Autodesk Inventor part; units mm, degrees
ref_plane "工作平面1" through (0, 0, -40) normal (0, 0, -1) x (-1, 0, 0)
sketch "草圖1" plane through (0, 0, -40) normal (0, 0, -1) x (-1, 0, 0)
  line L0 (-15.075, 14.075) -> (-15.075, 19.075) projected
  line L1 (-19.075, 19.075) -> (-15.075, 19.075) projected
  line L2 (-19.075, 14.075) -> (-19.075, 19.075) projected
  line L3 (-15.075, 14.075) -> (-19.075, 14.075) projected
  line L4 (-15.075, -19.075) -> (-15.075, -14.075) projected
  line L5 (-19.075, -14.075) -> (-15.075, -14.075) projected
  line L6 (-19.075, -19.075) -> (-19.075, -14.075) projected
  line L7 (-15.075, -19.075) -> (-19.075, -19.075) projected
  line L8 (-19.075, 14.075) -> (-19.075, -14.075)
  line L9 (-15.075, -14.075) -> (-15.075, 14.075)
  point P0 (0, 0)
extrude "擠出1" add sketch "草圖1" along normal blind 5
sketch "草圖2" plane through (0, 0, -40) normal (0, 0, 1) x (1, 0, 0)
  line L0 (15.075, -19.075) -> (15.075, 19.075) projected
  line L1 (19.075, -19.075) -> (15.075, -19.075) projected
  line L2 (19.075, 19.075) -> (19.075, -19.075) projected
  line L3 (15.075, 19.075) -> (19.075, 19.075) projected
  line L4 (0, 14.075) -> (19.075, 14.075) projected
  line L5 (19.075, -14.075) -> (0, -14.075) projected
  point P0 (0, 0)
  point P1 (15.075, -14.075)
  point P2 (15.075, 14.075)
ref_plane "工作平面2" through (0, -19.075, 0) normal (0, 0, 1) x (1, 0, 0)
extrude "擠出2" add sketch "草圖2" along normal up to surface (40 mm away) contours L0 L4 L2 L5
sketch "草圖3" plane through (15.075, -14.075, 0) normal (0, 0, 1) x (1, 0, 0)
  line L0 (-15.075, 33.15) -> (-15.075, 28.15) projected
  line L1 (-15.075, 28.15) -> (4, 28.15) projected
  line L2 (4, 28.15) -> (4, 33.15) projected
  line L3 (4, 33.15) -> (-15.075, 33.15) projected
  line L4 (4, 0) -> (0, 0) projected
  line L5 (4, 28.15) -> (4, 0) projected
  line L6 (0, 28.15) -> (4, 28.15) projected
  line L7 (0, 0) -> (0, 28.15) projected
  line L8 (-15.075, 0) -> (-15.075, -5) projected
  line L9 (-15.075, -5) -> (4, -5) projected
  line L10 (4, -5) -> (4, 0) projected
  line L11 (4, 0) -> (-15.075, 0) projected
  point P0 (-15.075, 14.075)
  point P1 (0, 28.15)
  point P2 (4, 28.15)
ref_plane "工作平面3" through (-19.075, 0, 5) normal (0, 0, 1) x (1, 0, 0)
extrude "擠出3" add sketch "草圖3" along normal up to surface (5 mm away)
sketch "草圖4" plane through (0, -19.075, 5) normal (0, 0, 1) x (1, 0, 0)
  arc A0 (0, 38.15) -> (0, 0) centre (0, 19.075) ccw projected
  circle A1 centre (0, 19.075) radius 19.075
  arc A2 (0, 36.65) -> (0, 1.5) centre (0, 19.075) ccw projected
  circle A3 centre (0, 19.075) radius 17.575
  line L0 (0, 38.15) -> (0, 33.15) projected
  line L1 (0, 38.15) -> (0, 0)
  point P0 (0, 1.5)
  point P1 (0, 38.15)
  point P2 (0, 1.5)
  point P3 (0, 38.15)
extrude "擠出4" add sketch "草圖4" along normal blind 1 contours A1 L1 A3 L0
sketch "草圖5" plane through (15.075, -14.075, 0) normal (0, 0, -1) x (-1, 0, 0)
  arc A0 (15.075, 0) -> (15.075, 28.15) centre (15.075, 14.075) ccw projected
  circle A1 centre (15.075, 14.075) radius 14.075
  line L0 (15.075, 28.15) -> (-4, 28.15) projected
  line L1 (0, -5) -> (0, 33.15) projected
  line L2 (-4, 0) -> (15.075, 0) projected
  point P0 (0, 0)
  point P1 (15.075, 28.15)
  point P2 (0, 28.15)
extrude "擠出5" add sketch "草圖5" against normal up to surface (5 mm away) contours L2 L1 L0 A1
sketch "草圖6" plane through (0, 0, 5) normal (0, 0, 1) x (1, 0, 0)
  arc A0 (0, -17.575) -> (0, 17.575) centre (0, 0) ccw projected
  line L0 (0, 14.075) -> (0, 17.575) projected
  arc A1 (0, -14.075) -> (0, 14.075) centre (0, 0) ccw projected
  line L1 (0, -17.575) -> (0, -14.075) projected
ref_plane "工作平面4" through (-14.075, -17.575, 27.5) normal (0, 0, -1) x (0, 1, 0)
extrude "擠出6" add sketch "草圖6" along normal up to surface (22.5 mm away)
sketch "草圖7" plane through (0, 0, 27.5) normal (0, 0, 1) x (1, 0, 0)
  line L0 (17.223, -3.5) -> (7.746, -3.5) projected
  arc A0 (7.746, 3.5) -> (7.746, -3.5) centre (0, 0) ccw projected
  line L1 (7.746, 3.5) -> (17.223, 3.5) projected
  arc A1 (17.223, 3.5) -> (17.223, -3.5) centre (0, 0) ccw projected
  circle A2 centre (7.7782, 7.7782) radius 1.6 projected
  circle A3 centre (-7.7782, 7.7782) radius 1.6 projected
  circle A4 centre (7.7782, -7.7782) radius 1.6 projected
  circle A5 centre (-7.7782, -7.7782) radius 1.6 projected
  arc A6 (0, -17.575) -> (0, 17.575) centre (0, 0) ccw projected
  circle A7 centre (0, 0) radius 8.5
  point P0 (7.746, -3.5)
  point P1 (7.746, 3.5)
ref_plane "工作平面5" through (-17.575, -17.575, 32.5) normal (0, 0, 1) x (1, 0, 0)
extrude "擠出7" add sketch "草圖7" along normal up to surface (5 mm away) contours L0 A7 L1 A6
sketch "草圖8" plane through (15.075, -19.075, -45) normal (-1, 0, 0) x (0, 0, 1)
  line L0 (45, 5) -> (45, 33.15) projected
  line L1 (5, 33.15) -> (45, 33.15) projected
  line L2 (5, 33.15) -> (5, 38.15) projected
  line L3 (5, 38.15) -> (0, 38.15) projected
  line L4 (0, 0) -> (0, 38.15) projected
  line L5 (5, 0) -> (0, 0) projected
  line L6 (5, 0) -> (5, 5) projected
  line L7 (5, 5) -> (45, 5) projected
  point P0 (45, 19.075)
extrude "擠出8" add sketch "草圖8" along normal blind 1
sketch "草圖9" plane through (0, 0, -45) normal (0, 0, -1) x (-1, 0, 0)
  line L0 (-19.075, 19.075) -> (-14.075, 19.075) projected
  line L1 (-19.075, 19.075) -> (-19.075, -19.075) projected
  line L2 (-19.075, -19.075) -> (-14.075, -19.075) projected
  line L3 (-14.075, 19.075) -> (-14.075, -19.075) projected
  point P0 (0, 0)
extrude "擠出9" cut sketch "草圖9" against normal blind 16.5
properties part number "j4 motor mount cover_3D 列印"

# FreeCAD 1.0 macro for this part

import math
import FreeCAD as App
import Part
import Sketcher

doc = App.newDocument("Part")
body = doc.addObject("PartDesign::Body", "Body")

sketch1 = body.newObject("Sketcher::SketchObject", "Sketch")
sketch1.AttachmentSupport = (doc.getObject("XY_Plane"), [""])
sketch1.MapMode = "FlatFace"
sketch1.AttachmentOffset = App.Placement(App.Vector(0, 0, -40), App.Rotation())
sketch1.addGeometry(Part.LineSegment(App.Vector(19.075, 19.075, 0), App.Vector(19.075, -19.075, 0)), False)
sketch1.addGeometry(Part.LineSegment(App.Vector(19.075, -19.075, 0), App.Vector(15.075, -19.075, 0)), False)
sketch1.addGeometry(Part.LineSegment(App.Vector(15.075, -19.075, 0), App.Vector(15.075, 19.075, 0)), False)
sketch1.addGeometry(Part.LineSegment(App.Vector(15.075, 19.075, 0), App.Vector(19.075, 19.075, 0)), False)
sketch1.addConstraint(Sketcher.Constraint("Coincident", 0, 2, 1, 1))
sketch1.addConstraint(Sketcher.Constraint("Coincident", 1, 2, 2, 1))
sketch1.addConstraint(Sketcher.Constraint("Coincident", 2, 2, 3, 1))
sketch1.addConstraint(Sketcher.Constraint("Coincident", 3, 2, 0, 1))
sketch1.addConstraint(Sketcher.Constraint("Vertical", 0))
sketch1.addConstraint(Sketcher.Constraint("Horizontal", 1))
sketch1.addConstraint(Sketcher.Constraint("Vertical", 2))
sketch1.addConstraint(Sketcher.Constraint("Horizontal", 3))
sketch1.addConstraint(Sketcher.Constraint("DistanceX", 1, 2, 1, 1, 4.0))
sketch1.addConstraint(Sketcher.Constraint("DistanceY", 0, 2, 0, 1, 38.15))
sketch1.addConstraint(Sketcher.Constraint("DistanceX", -1, 1, 0, 2, 19.075))
sketch1.addConstraint(Sketcher.Constraint("DistanceY", 0, 2, -1, 1, 19.075))
pad1 = body.newObject("PartDesign::Pad", "Pad")
pad1.Profile = sketch1
pad1.Length = 5
pad1.Reversed = True

sketch2 = body.newObject("Sketcher::SketchObject", "Sketch001")
sketch2.AttachmentSupport = (doc.getObject("XY_Plane"), [""])
sketch2.MapMode = "FlatFace"
sketch2.AttachmentOffset = App.Placement(App.Vector(0, 0, -40), App.Rotation())
sketch2.addGeometry(Part.LineSegment(App.Vector(15.075, 14.075, 0), App.Vector(15.075, -14.075, 0)), False)
sketch2.addGeometry(Part.LineSegment(App.Vector(15.075, -14.075, 0), App.Vector(19.075, -14.075, 0)), False)
sketch2.addGeometry(Part.LineSegment(App.Vector(19.075, -14.075, 0), App.Vector(19.075, 14.075, 0)), False)
sketch2.addGeometry(Part.LineSegment(App.Vector(19.075, 14.075, 0), App.Vector(15.075, 14.075, 0)), False)
sketch2.addConstraint(Sketcher.Constraint("Coincident", 0, 2, 1, 1))
sketch2.addConstraint(Sketcher.Constraint("Coincident", 1, 2, 2, 1))
sketch2.addConstraint(Sketcher.Constraint("Coincident", 2, 2, 3, 1))
sketch2.addConstraint(Sketcher.Constraint("Coincident", 3, 2, 0, 1))
sketch2.addConstraint(Sketcher.Constraint("Vertical", 0))
sketch2.addConstraint(Sketcher.Constraint("Horizontal", 1))
sketch2.addConstraint(Sketcher.Constraint("Vertical", 2))
sketch2.addConstraint(Sketcher.Constraint("Horizontal", 3))
sketch2.addConstraint(Sketcher.Constraint("DistanceX", 1, 1, 1, 2, 4.0))
sketch2.addConstraint(Sketcher.Constraint("DistanceY", 0, 2, 0, 1, 28.15))
sketch2.addConstraint(Sketcher.Constraint("DistanceX", -1, 1, 0, 2, 15.075))
sketch2.addConstraint(Sketcher.Constraint("DistanceY", 0, 2, -1, 1, 14.075))
pad2 = body.newObject("PartDesign::Pad", "Pad001")
pad2.Profile = sketch2
pad2.Length = 40

sketch3 = body.newObject("Sketcher::SketchObject", "Sketch002")
sketch3.AttachmentSupport = (doc.getObject("XY_Plane"), [""])
sketch3.MapMode = "FlatFace"
sketch3.addGeometry(Part.LineSegment(App.Vector(19.075, 19.075, 0), App.Vector(0, 19.075, 0)), False)
sketch3.addGeometry(Part.LineSegment(App.Vector(0, 19.075, 0), App.Vector(0, 14.075, 0)), False)
sketch3.addGeometry(Part.LineSegment(App.Vector(0, 14.075, 0), App.Vector(15.075, 14.075, 0)), False)
sketch3.addGeometry(Part.LineSegment(App.Vector(15.075, 14.075, 0), App.Vector(15.075, -14.075, 0)), False)
sketch3.addGeometry(Part.LineSegment(App.Vector(15.075, -14.075, 0), App.Vector(0, -14.075, 0)), False)
sketch3.addGeometry(Part.LineSegment(App.Vector(0, -14.075, 0), App.Vector(0, -19.075, 0)), False)
sketch3.addGeometry(Part.LineSegment(App.Vector(0, -19.075, 0), App.Vector(19.075, -19.075, 0)), False)
sketch3.addGeometry(Part.LineSegment(App.Vector(19.075, -19.075, 0), App.Vector(19.075, 19.075, 0)), False)
sketch3.addConstraint(Sketcher.Constraint("Coincident", 0, 2, 1, 1))
sketch3.addConstraint(Sketcher.Constraint("Coincident", 1, 2, 2, 1))
sketch3.addConstraint(Sketcher.Constraint("Coincident", 2, 2, 3, 1))
sketch3.addConstraint(Sketcher.Constraint("Coincident", 3, 2, 4, 1))
sketch3.addConstraint(Sketcher.Constraint("Coincident", 4, 2, 5, 1))
sketch3.addConstraint(Sketcher.Constraint("Coincident", 5, 2, 6, 1))
sketch3.addConstraint(Sketcher.Constraint("Coincident", 6, 2, 7, 1))
sketch3.addConstraint(Sketcher.Constraint("Coincident", 7, 2, 0, 1))
sketch3.addConstraint(Sketcher.Constraint("Horizontal", 0))
sketch3.addConstraint(Sketcher.Constraint("Vertical", 1))
sketch3.addConstraint(Sketcher.Constraint("Horizontal", 2))
sketch3.addConstraint(Sketcher.Constraint("Vertical", 3))
sketch3.addConstraint(Sketcher.Constraint("Horizontal", 4))
sketch3.addConstraint(Sketcher.Constraint("Vertical", 5))
sketch3.addConstraint(Sketcher.Constraint("Horizontal", 6))
sketch3.addConstraint(Sketcher.Constraint("Vertical", 7))
sketch3.addConstraint(Sketcher.Constraint("Symmetric", 1, 2, 4, 2, -1, 1))
sketch3.addConstraint(Sketcher.Constraint("Symmetric", 0, 2, 5, 2, -1))
sketch3.addConstraint(Sketcher.Constraint("DistanceY", 1, 2, 1, 1, 5.0))
sketch3.addConstraint(Sketcher.Constraint("DistanceX", 3, 2, 6, 2, 4.0))
sketch3.addConstraint(Sketcher.Constraint("DistanceY", 3, 2, 3, 1, 28.15))
sketch3.addConstraint(Sketcher.Constraint("DistanceX", 0, 2, 0, 1, 19.075))
pad3 = body.newObject("PartDesign::Pad", "Pad002")
pad3.Profile = sketch3
pad3.Length = 5

sketch4 = body.newObject("Sketcher::SketchObject", "Sketch003")
sketch4.AttachmentSupport = (doc.getObject("XY_Plane"), [""])
sketch4.MapMode = "FlatFace"
sketch4.AttachmentOffset = App.Placement(App.Vector(0, 0, 5), App.Rotation())
sketch4.addGeometry(Part.ArcOfCircle(Part.Circle(App.Vector(0, 0, 0), App.Vector(0, 0, 1), 19.075), math.radians(-90), math.radians(90)), False)
sketch4.addGeometry(Part.LineSegment(App.Vector(0, 19.075, 0), App.Vector(0, 17.575, 0)), False)
sketch4.addGeometry(Part.ArcOfCircle(Part.Circle(App.Vector(0, 0, 0), App.Vector(0, 0, 1), 17.575), math.radians(-90), math.radians(90)), False)
sketch4.addGeometry(Part.LineSegment(App.Vector(0, -17.575, 0), App.Vector(0, -19.075, 0)), False)
sketch4.addConstraint(Sketcher.Constraint("Coincident", 0, 2, 1, 1))
sketch4.addConstraint(Sketcher.Constraint("Coincident", 1, 2, 2, 2))
sketch4.addConstraint(Sketcher.Constraint("Coincident", 2, 1, 3, 1))
sketch4.addConstraint(Sketcher.Constraint("Coincident", 3, 2, 0, 1))
sketch4.addConstraint(Sketcher.Constraint("Vertical", 1))
sketch4.addConstraint(Sketcher.Constraint("Vertical", 3))
sketch4.addConstraint(Sketcher.Constraint("Coincident", 0, 3, -1, 1))
sketch4.addConstraint(Sketcher.Constraint("Coincident", 2, 3, -1, 1))
sketch4.addConstraint(Sketcher.Constraint("PointOnObject", 0, 2, -2))
sketch4.addConstraint(Sketcher.Constraint("PointOnObject", 2, 1, -2))
sketch4.addConstraint(Sketcher.Constraint("DistanceY", 1, 2, 1, 1, 1.5))
sketch4.addConstraint(Sketcher.Constraint("Radius", 0, 19.075))
pad4 = body.newObject("PartDesign::Pad", "Pad003")
pad4.Profile = sketch4
pad4.Length = 1

sketch5 = body.newObject("Sketcher::SketchObject", "Sketch004")
sketch5.AttachmentSupport = (doc.getObject("XY_Plane"), [""])
sketch5.MapMode = "FlatFace"
sketch5.addGeometry(Part.LineSegment(App.Vector(15.075, -14.075, 0), App.Vector(0, -14.075, 0)), False)
sketch5.addGeometry(Part.ArcOfCircle(Part.Circle(App.Vector(0, 0, 0), App.Vector(0, 0, 1), 14.075), math.radians(-90), math.radians(90)), False)
sketch5.addGeometry(Part.LineSegment(App.Vector(0, 14.075, 0), App.Vector(15.075, 14.075, 0)), False)
sketch5.addGeometry(Part.LineSegment(App.Vector(15.075, 14.075, 0), App.Vector(15.075, -14.075, 0)), False)
sketch5.addConstraint(Sketcher.Constraint("Tangent", 0, 2, 1, 1))
sketch5.addConstraint(Sketcher.Constraint("Tangent", 1, 2, 2, 1))
sketch5.addConstraint(Sketcher.Constraint("Coincident", 2, 2, 3, 1))
sketch5.addConstraint(Sketcher.Constraint("Coincident", 3, 2, 0, 1))
sketch5.addConstraint(Sketcher.Constraint("Horizontal", 0))
sketch5.addConstraint(Sketcher.Constraint("Horizontal", 2))
sketch5.addConstraint(Sketcher.Constraint("Vertical", 3))
sketch5.addConstraint(Sketcher.Constraint("Coincident", 1, 3, -1, 1))
sketch5.addConstraint(Sketcher.Constraint("Radius", 1, 14.075))
sketch5.addConstraint(Sketcher.Constraint("DistanceX", 0, 2, 0, 1, 15.075))
pad5 = body.newObject("PartDesign::Pad", "Pad004")
pad5.Profile = sketch5
pad5.Length = 5

sketch6 = body.newObject("Sketcher::SketchObject", "Sketch005")
sketch6.AttachmentSupport = (doc.getObject("XY_Plane"), [""])
sketch6.MapMode = "FlatFace"
sketch6.AttachmentOffset = App.Placement(App.Vector(0, 0, 5), App.Rotation())
sketch6.addGeometry(Part.LineSegment(App.Vector(0, -14.075, 0), App.Vector(0, -17.575, 0)), False)
sketch6.addGeometry(Part.ArcOfCircle(Part.Circle(App.Vector(0, 0, 0), App.Vector(0, 0, 1), 17.575), math.radians(-90), math.radians(90)), False)
sketch6.addGeometry(Part.LineSegment(App.Vector(0, 17.575, 0), App.Vector(0, 14.075, 0)), False)
sketch6.addGeometry(Part.ArcOfCircle(Part.Circle(App.Vector(0, 0, 0), App.Vector(0, 0, 1), 14.075), math.radians(-90), math.radians(90)), False)
sketch6.addConstraint(Sketcher.Constraint("Coincident", 0, 2, 1, 1))
sketch6.addConstraint(Sketcher.Constraint("Coincident", 1, 2, 2, 1))
sketch6.addConstraint(Sketcher.Constraint("Coincident", 2, 2, 3, 2))
sketch6.addConstraint(Sketcher.Constraint("Coincident", 3, 1, 0, 1))
sketch6.addConstraint(Sketcher.Constraint("Vertical", 0))
sketch6.addConstraint(Sketcher.Constraint("Vertical", 2))
sketch6.addConstraint(Sketcher.Constraint("Coincident", 1, 3, -1, 1))
sketch6.addConstraint(Sketcher.Constraint("Coincident", 3, 3, -1, 1))
sketch6.addConstraint(Sketcher.Constraint("PointOnObject", 0, 2, -2))
sketch6.addConstraint(Sketcher.Constraint("PointOnObject", 1, 2, -2))
sketch6.addConstraint(Sketcher.Constraint("DistanceY", 0, 2, 0, 1, 3.5))
sketch6.addConstraint(Sketcher.Constraint("Radius", 1, 17.575))
pad6 = body.newObject("PartDesign::Pad", "Pad005")
pad6.Profile = sketch6
pad6.Length = 22.5

sketch7 = body.newObject("Sketcher::SketchObject", "Sketch006")
sketch7.AttachmentSupport = (doc.getObject("XY_Plane"), [""])
sketch7.MapMode = "FlatFace"
sketch7.AttachmentOffset = App.Placement(App.Vector(0, 0, 27.5), App.Rotation())
sketch7.addGeometry(Part.LineSegment(App.Vector(7.746, -3.5, 0), App.Vector(17.223, -3.5, 0)), False)
sketch7.addGeometry(Part.ArcOfCircle(Part.Circle(App.Vector(0, 0, 0), App.Vector(0, 0, 1), 17.575), math.radians(-11.487033), math.radians(11.487033)), False)
sketch7.addGeometry(Part.LineSegment(App.Vector(17.223, 3.5, 0), App.Vector(7.746, 3.5, 0)), False)
sketch7.addGeometry(Part.ArcOfCircle(Part.Circle(App.Vector(0, 0, 0), App.Vector(0, 0, 1), 8.5), math.radians(-24.315647), math.radians(24.315647)), False)
sketch7.addConstraint(Sketcher.Constraint("Coincident", 0, 2, 1, 1))
sketch7.addConstraint(Sketcher.Constraint("Coincident", 1, 2, 2, 1))
sketch7.addConstraint(Sketcher.Constraint("Coincident", 2, 2, 3, 2))
sketch7.addConstraint(Sketcher.Constraint("Coincident", 3, 1, 0, 1))
sketch7.addConstraint(Sketcher.Constraint("Horizontal", 0))
sketch7.addConstraint(Sketcher.Constraint("Horizontal", 2))
sketch7.addConstraint(Sketcher.Constraint("Coincident", 1, 3, -1, 1))
sketch7.addConstraint(Sketcher.Constraint("Coincident", 3, 3, -1, 1))
sketch7.addConstraint(Sketcher.Constraint("Vertical", 0, 2, 1, 2))
sketch7.addConstraint(Sketcher.Constraint("Radius", 3, 8.5))
sketch7.addConstraint(Sketcher.Constraint("Radius", 1, 17.575))
sketch7.addConstraint(Sketcher.Constraint("DistanceY", 0, 2, 1, 2, 7.0))
pad7 = body.newObject("PartDesign::Pad", "Pad006")
pad7.Profile = sketch7
pad7.Length = 5

sketch8 = body.newObject("Sketcher::SketchObject", "Sketch007")
sketch8.AttachmentSupport = (doc.getObject("YZ_Plane"), [""])
sketch8.MapMode = "FlatFace"
sketch8.AttachmentOffset = App.Placement(App.Vector(0, 0, 15.075), App.Rotation())
sketch8.addGeometry(Part.LineSegment(App.Vector(-14.075, -40, 0), App.Vector(-14.075, 0, 0)), False)
sketch8.addGeometry(Part.LineSegment(App.Vector(-14.075, 0, 0), App.Vector(14.075, 0, 0)), False)
sketch8.addGeometry(Part.LineSegment(App.Vector(14.075, 0, 0), App.Vector(14.075, -40, 0)), False)
sketch8.addGeometry(Part.LineSegment(App.Vector(14.075, -40, 0), App.Vector(19.075, -40, 0)), False)
sketch8.addGeometry(Part.LineSegment(App.Vector(19.075, -40, 0), App.Vector(19.075, -45, 0)), False)
sketch8.addGeometry(Part.LineSegment(App.Vector(19.075, -45, 0), App.Vector(-19.075, -45, 0)), False)
sketch8.addGeometry(Part.LineSegment(App.Vector(-19.075, -45, 0), App.Vector(-19.075, -40, 0)), False)
sketch8.addGeometry(Part.LineSegment(App.Vector(-19.075, -40, 0), App.Vector(-14.075, -40, 0)), False)
sketch8.addConstraint(Sketcher.Constraint("Coincident", 0, 2, 1, 1))
sketch8.addConstraint(Sketcher.Constraint("Coincident", 1, 2, 2, 1))
sketch8.addConstraint(Sketcher.Constraint("Coincident", 2, 2, 3, 1))
sketch8.addConstraint(Sketcher.Constraint("Coincident", 3, 2, 4, 1))
sketch8.addConstraint(Sketcher.Constraint("Coincident", 4, 2, 5, 1))
sketch8.addConstraint(Sketcher.Constraint("Coincident", 5, 2, 6, 1))
sketch8.addConstraint(Sketcher.Constraint("Coincident", 6, 2, 7, 1))
sketch8.addConstraint(Sketcher.Constraint("Coincident", 7, 2, 0, 1))
sketch8.addConstraint(Sketcher.Constraint("Vertical", 0))
sketch8.addConstraint(Sketcher.Constraint("Horizontal", 1))
sketch8.addConstraint(Sketcher.Constraint("Vertical", 2))
sketch8.addConstraint(Sketcher.Constraint("Horizontal", 3))
sketch8.addConstraint(Sketcher.Constraint("Vertical", 4))
sketch8.addConstraint(Sketcher.Constraint("Horizontal", 5))
sketch8.addConstraint(Sketcher.Constraint("Vertical", 6))
sketch8.addConstraint(Sketcher.Constraint("Horizontal", 7))
sketch8.addConstraint(Sketcher.Constraint("Symmetric", 0, 2, 1, 2, -1, 1))
sketch8.addConstraint(Sketcher.Constraint("Symmetric", 3, 2, 6, 2, -2))
sketch8.addConstraint(Sketcher.Constraint("Equal", 7, 4))
sketch8.addConstraint(Sketcher.Constraint("DistanceX", 3, 1, 3, 2, 5.0))
sketch8.addConstraint(Sketcher.Constraint("DistanceY", 0, 1, 0, 2, 40.0))
sketch8.addConstraint(Sketcher.Constraint("DistanceX", 1, 1, 1, 2, 28.15))
pad8 = body.newObject("PartDesign::Pad", "Pad007")
pad8.Profile = sketch8
pad8.Length = 1
pad8.Reversed = True

sketch9 = body.newObject("Sketcher::SketchObject", "Sketch008")
sketch9.AttachmentSupport = (doc.getObject("XY_Plane"), [""])
sketch9.MapMode = "FlatFace"
sketch9.AttachmentOffset = App.Placement(App.Vector(0, 0, -45), App.Rotation())
sketch9.addGeometry(Part.LineSegment(App.Vector(14.075, 19.075, 0), App.Vector(19.075, 19.075, 0)), False)
sketch9.addGeometry(Part.LineSegment(App.Vector(19.075, 19.075, 0), App.Vector(19.075, -19.075, 0)), False)
sketch9.addGeometry(Part.LineSegment(App.Vector(19.075, -19.075, 0), App.Vector(14.075, -19.075, 0)), False)
sketch9.addGeometry(Part.LineSegment(App.Vector(14.075, -19.075, 0), App.Vector(14.075, 19.075, 0)), False)
sketch9.addConstraint(Sketcher.Constraint("Coincident", 0, 2, 1, 1))
sketch9.addConstraint(Sketcher.Constraint("Coincident", 1, 2, 2, 1))
sketch9.addConstraint(Sketcher.Constraint("Coincident", 2, 2, 3, 1))
sketch9.addConstraint(Sketcher.Constraint("Coincident", 3, 2, 0, 1))
sketch9.addConstraint(Sketcher.Constraint("Horizontal", 0))
sketch9.addConstraint(Sketcher.Constraint("Vertical", 1))
sketch9.addConstraint(Sketcher.Constraint("Horizontal", 2))
sketch9.addConstraint(Sketcher.Constraint("Vertical", 3))
sketch9.addConstraint(Sketcher.Constraint("DistanceX", 0, 1, 0, 2, 5.0))
sketch9.addConstraint(Sketcher.Constraint("DistanceY", 1, 2, 1, 1, 38.15))
sketch9.addConstraint(Sketcher.Constraint("DistanceX", -1, 1, 0, 2, 19.075))
sketch9.addConstraint(Sketcher.Constraint("DistanceY", -1, 1, 0, 2, 19.075))
pocket1 = body.newObject("PartDesign::Pocket", "Pocket")
pocket1.Profile = sketch9
pocket1.Length = 16.5
pocket1.Reversed = True

doc.recompute()
